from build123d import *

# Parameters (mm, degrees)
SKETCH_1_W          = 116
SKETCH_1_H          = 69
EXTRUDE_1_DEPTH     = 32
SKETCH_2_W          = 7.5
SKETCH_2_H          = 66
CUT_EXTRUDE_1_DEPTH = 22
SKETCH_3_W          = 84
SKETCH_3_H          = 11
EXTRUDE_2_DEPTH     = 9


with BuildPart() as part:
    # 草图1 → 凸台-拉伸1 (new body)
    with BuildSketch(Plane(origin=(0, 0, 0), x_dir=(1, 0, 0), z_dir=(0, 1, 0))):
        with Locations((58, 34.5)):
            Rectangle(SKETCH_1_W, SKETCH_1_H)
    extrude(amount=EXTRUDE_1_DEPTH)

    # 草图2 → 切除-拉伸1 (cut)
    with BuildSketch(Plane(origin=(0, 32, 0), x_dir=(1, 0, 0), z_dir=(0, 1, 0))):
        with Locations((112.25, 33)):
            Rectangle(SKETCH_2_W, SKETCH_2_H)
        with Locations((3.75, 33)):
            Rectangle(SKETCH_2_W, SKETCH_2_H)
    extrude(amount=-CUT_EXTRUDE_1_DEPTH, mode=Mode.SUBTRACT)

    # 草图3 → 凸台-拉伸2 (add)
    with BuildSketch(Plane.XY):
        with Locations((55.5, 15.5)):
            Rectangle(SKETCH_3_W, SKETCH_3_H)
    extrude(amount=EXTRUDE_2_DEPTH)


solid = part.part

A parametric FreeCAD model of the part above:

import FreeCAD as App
import Part
import Sketcher


def add_polygon(sketch, points):
    """Adds a closed chain of lines whose ends are joined by coincident constraints."""
    first, n = sketch.GeometryCount, len(points)
    for a, b in zip(points, points[1:] + points[:1]):
        sketch.addGeometry(Part.LineSegment(App.Vector(*a, 0), App.Vector(*b, 0)), False)
    for i in range(n):
        sketch.addConstraint(Sketcher.Constraint("Coincident", first + i, 2, first + (i + 1) % n, 1))

doc = App.newDocument("Part")
params = doc.addObject("Spreadsheet::Sheet", "Params")
for row, (alias, value) in enumerate([
    ("sketch1_width", "116 mm"),
    ("sketch1_height", "69 mm"),
    ("pad1_length", "32 mm"),
    ("sketch2_height", "66 mm"),
    ("sketch2_width", "7.5 mm"),
    ("pocket1_length", "22 mm"),
    ("sketch3_width", "84 mm"),
    ("sketch3_height", "11 mm"),
    ("pad2_length", "9 mm"),
], start=1):
    params.set(f"A{row}", alias)
    params.set(f"B{row}", "=" + value)
    params.setAlias(f"B{row}", alias)

body = doc.addObject("PartDesign::Body", "Body")

# Sketch on XZ plane
sketch1 = body.newObject("Sketcher::SketchObject", "Sketch")
sketch1.AttachmentSupport = (doc.getObject("XZ_Plane"), [""])
sketch1.MapMode = "FlatFace"
add_polygon(sketch1, [(0, -69), (0, 0), (116, 0), (116, -69)])  # lines 0-3
sketch1.addConstraint([
    Sketcher.Constraint("Vertical", 0),
    Sketcher.Constraint("Horizontal", 1),
    Sketcher.Constraint("Vertical", 2),
    Sketcher.Constraint("Horizontal", 3),
    Sketcher.Constraint("Coincident", 0, 2, -1, 1),
    Sketcher.Constraint("DistanceX", 1, 1, 1, 2, 116.0),
    Sketcher.Constraint("DistanceY", 0, 1, 0, 2, 69.0),
])
sketch1.setExpression("Constraints[9]", "Params.sketch1_width")
sketch1.setExpression("Constraints[10]", "Params.sketch1_height")
pad1 = body.newObject("PartDesign::Pad", "Pad")
pad1.Profile = sketch1
pad1.setExpression("Length", "Params.pad1_length")
pad1.Reversed = True

# Sketch on XZ plane
sketch2 = body.newObject("Sketcher::SketchObject", "Sketch001")
sketch2.AttachmentSupport = (doc.getObject("XZ_Plane"), [""])
sketch2.MapMode = "FlatFace"
sketch2.AttachmentOffset = App.Placement(App.Vector(0, 0, -32), App.Rotation())
add_polygon(sketch2, [(108.5, -66), (108.5, 0), (116, 0), (116, -66)])  # lines 0-3
add_polygon(sketch2, [(0, -66), (0, 0), (7.5, 0), (7.5, -66)])  # lines 4-7
sketch2.addConstraint([
    Sketcher.Constraint("Vertical", 0),
    Sketcher.Constraint("Horizontal", 1),
    Sketcher.Constraint("Vertical", 2),
    Sketcher.Constraint("Horizontal", 3),
    Sketcher.Constraint("Vertical", 4),
    Sketcher.Constraint("Horizontal", 5),
    Sketcher.Constraint("Vertical", 6),
    Sketcher.Constraint("Horizontal", 7),
    Sketcher.Constraint("Coincident", 4, 2, -1, 1),
    Sketcher.Constraint("PointOnObject", 0, 2, -1),
    Sketcher.Constraint("Horizontal", 3, 2, 6, 2),
    Sketcher.Constraint("Equal", 3, 5),
    Sketcher.Constraint("DistanceY", 0, 1, 0, 2, 66.0),
    Sketcher.Constraint("DistanceX", 1, 1, 1, 2, 7.5),
    Sketcher.Constraint("DistanceX", -1, 1, 1, 2, 116.0),
])
sketch2.setExpression("Constraints[20]", "Params.sketch2_height")
sketch2.setExpression("Constraints[21]", "Params.sketch2_width")
pocket1 = body.newObject("PartDesign::Pocket", "Pocket")
pocket1.Profile = sketch2
pocket1.setExpression("Length", "Params.pocket1_length")
pocket1.Reversed = True

# Sketch on XY plane
sketch3 = body.newObject("Sketcher::SketchObject", "Sketch002")
sketch3.AttachmentSupport = (doc.getObject("XY_Plane"), [""])
sketch3.MapMode = "FlatFace"
add_polygon(sketch3, [(13.5, 21), (13.5, 10), (97.5, 10), (97.5, 21)])  # lines 0-3
sketch3.addConstraint([
    Sketcher.Constraint("Vertical", 0),
    Sketcher.Constraint("Horizontal", 1),
    Sketcher.Constraint("Vertical", 2),
    Sketcher.Constraint("Horizontal", 3),
    Sketcher.Constraint("DistanceX", 1, 1, 1, 2, 84.0),
    Sketcher.Constraint("DistanceY", 0, 2, 0, 1, 11.0),
    Sketcher.Constraint("DistanceY", -1, 1, 0, 2, 10.0),
    Sketcher.Constraint("DistanceX", -1, 1, 0, 2, 13.5),
])
sketch3.setExpression("Constraints[8]", "Params.sketch3_width")
sketch3.setExpression("Constraints[9]", "Params.sketch3_height")
pad2 = body.newObject("PartDesign::Pad", "Pad001")
pad2.Profile = sketch3
pad2.setExpression("Length", "Params.pad2_length")

doc.recompute()
